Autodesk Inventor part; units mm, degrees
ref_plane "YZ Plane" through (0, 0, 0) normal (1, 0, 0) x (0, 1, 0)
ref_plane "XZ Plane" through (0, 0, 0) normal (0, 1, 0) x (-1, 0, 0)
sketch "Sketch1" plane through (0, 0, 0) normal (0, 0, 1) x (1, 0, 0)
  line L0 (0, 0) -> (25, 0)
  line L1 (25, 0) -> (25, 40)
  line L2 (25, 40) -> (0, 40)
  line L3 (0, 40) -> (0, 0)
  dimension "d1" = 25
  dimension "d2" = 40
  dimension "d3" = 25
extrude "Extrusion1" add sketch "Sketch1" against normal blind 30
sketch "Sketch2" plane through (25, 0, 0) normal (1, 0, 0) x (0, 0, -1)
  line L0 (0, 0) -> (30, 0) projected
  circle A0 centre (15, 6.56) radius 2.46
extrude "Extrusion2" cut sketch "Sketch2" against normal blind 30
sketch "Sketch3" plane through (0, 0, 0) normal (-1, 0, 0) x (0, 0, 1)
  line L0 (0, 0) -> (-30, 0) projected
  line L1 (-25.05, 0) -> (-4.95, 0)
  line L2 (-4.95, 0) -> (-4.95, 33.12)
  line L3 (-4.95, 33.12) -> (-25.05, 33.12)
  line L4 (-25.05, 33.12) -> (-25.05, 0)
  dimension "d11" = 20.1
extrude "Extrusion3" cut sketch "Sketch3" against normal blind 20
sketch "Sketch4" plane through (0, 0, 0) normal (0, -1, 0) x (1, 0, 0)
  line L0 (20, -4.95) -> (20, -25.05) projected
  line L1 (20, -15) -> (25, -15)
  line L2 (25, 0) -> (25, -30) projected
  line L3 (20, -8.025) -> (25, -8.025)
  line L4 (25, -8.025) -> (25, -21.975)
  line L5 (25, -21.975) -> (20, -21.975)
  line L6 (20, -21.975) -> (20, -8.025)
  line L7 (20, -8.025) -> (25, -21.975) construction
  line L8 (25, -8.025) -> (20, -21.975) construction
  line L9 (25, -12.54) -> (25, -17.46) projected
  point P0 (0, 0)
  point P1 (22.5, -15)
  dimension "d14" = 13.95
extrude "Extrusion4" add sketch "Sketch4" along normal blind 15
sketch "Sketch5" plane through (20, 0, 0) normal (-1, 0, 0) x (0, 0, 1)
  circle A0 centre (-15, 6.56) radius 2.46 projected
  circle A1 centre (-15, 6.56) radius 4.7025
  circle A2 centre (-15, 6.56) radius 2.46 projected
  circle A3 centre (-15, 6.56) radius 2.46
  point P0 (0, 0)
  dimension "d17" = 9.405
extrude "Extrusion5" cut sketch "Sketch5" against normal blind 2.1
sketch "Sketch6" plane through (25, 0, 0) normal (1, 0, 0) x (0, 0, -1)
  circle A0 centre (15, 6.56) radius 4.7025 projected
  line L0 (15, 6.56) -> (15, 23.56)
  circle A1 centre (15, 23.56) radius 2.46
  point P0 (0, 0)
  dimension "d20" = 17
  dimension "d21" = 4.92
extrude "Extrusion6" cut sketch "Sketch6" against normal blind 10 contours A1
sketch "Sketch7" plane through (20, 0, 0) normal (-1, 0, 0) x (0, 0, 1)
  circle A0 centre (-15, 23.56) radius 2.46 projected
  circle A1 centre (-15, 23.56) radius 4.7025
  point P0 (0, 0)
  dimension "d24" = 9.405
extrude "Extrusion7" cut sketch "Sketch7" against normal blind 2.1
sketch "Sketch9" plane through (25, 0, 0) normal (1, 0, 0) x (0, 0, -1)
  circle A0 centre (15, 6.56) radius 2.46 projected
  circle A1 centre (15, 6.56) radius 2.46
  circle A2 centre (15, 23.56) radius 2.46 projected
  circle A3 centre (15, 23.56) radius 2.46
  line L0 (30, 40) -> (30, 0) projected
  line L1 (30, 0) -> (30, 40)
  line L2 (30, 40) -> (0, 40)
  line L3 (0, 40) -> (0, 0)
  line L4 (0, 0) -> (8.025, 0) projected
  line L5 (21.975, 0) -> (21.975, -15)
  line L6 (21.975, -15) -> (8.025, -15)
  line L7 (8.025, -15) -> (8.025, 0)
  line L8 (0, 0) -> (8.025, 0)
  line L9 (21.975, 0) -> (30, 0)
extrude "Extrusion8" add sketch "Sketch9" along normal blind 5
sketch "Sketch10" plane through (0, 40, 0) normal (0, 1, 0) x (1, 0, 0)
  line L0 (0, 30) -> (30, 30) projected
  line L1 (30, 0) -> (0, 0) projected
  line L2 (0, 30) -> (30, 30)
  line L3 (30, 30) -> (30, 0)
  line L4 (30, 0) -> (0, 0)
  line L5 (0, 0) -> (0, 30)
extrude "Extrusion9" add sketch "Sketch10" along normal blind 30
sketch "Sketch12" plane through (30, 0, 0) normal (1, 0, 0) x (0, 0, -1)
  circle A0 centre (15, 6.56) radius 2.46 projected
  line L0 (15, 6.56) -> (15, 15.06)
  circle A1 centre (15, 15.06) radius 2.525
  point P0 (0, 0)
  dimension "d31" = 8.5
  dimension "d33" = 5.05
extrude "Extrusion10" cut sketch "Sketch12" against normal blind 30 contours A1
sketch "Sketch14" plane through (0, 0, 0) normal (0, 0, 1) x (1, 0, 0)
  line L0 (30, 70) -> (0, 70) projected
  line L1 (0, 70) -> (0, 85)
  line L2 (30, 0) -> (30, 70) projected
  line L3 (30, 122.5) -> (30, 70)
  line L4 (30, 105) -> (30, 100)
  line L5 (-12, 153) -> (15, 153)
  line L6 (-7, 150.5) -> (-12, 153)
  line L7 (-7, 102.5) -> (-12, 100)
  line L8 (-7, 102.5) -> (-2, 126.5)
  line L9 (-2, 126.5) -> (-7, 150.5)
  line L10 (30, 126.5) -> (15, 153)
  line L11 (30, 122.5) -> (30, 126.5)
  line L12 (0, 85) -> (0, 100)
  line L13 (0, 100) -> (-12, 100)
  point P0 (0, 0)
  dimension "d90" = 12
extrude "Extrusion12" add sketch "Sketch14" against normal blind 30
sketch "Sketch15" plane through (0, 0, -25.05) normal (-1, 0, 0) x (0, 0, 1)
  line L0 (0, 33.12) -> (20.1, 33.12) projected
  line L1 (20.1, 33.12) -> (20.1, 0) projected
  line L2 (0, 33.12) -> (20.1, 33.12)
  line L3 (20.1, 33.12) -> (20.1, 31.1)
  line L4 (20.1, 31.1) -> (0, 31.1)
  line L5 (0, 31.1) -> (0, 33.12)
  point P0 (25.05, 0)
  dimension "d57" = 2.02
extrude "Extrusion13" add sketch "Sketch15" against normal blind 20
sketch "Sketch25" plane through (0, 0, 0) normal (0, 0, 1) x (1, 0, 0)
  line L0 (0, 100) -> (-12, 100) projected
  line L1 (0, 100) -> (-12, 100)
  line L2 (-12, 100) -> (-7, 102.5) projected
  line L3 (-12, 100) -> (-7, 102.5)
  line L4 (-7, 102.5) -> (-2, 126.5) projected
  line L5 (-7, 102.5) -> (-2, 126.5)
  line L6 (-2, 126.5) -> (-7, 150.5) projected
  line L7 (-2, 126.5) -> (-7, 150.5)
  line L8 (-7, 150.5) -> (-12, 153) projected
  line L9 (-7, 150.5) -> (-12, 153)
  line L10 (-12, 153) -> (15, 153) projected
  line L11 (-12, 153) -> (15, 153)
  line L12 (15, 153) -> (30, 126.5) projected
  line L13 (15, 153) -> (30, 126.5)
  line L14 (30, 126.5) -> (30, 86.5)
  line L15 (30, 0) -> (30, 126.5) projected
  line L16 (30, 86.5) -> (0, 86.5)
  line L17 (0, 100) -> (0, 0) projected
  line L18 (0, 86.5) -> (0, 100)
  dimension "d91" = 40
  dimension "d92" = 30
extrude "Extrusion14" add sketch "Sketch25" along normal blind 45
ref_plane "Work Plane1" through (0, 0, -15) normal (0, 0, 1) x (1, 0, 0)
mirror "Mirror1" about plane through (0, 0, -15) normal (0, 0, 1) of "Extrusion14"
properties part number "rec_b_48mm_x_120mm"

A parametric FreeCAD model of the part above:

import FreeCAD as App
import Part
import Sketcher
Q = App.Units.Quantity

doc = App.newDocument("Part")
body = doc.addObject("PartDesign::Body", "Body")

# Sketch on XY plane
sketch1 = doc.addObject("Sketcher::SketchObject", "Sketch")
body.addObject(sketch1)
sketch1.AttachmentSupport = (doc.XY_Plane, [""])
sketch1.MapMode = "FlatFace"
sketch1.addGeometry(Part.LineSegment(App.Vector(0, 40, 0), App.Vector(0, 0, 0)), False)
sketch1.addGeometry(Part.LineSegment(App.Vector(0, 0, 0), App.Vector(25, 0, 0)), False)
sketch1.addGeometry(Part.LineSegment(App.Vector(25, 0, 0), App.Vector(25, 40, 0)), False)
sketch1.addGeometry(Part.LineSegment(App.Vector(25, 40, 0), App.Vector(0, 40, 0)), False)
sketch1.addConstraint(Sketcher.Constraint("Coincident", 0, 2, 1, 1))
sketch1.addConstraint(Sketcher.Constraint("Coincident", 1, 2, 2, 1))
sketch1.addConstraint(Sketcher.Constraint("Coincident", 2, 2, 3, 1))
sketch1.addConstraint(Sketcher.Constraint("Coincident", 3, 2, 0, 1))
sketch1.addConstraint(Sketcher.Constraint("Vertical", 0))
sketch1.addConstraint(Sketcher.Constraint("Horizontal", 1))
sketch1.addConstraint(Sketcher.Constraint("Vertical", 2))
sketch1.addConstraint(Sketcher.Constraint("Horizontal", 3))
sketch1.addConstraint(Sketcher.Constraint("Coincident", 0, 2, -1, 1))
sketch1.addConstraint(Sketcher.Constraint("DistanceX", 1, 1, 1, 2, Q("25 mm")))
sketch1.addConstraint(Sketcher.Constraint("DistanceY", 0, 2, 0, 1, Q("40 mm")))
pad1 = doc.addObject("PartDesign::Pad", "Pad")
body.addObject(pad1)
pad1.Profile = sketch1
pad1.Length = 30
pad1.Reversed = True

# Sketch on YZ plane
sketch2 = doc.addObject("Sketcher::SketchObject", "Sketch001")
body.addObject(sketch2)
sketch2.AttachmentSupport = (doc.YZ_Plane, [""])
sketch2.MapMode = "FlatFace"
sketch2.AttachmentOffset = App.Placement(App.Vector(0, 0, 25), App.Rotation())
sketch2.addGeometry(Part.Circle(App.Vector(6.56, -15, 0), App.Vector(0, 0, 1), 2.46), False)
sketch2.addConstraint(Sketcher.Constraint("Diameter", 0, Q("4.92 mm")))
sketch2.addConstraint(Sketcher.Constraint("DistanceY", 0, 3, -1, 1, Q("15 mm")))
sketch2.addConstraint(Sketcher.Constraint("DistanceX", -1, 1, 0, 3, Q("6.56 mm")))
pocket1 = doc.addObject("PartDesign::Pocket", "Pocket")
body.addObject(pocket1)
pocket1.Profile = sketch2
pocket1.Length = 30

# Sketch on YZ plane
sketch3 = doc.addObject("Sketcher::SketchObject", "Sketch002")
body.addObject(sketch3)
sketch3.AttachmentSupport = (doc.YZ_Plane, [""])
sketch3.MapMode = "FlatFace"
sketch3.addGeometry(Part.LineSegment(App.Vector(0, -25.05, 0), App.Vector(0, -4.95, 0)), False)
sketch3.addGeometry(Part.LineSegment(App.Vector(0, -4.95, 0), App.Vector(33.12, -4.95, 0)), False)
sketch3.addGeometry(Part.LineSegment(App.Vector(33.12, -4.95, 0), App.Vector(33.12, -25.05, 0)), False)
sketch3.addGeometry(Part.LineSegment(App.Vector(33.12, -25.05, 0), App.Vector(0, -25.05, 0)), False)
sketch3.addConstraint(Sketcher.Constraint("Coincident", 0, 2, 1, 1))
sketch3.addConstraint(Sketcher.Constraint("Coincident", 1, 2, 2, 1))
sketch3.addConstraint(Sketcher.Constraint("Coincident", 2, 2, 3, 1))
sketch3.addConstraint(Sketcher.Constraint("Coincident", 3, 2, 0, 1))
sketch3.addConstraint(Sketcher.Constraint("Vertical", 0))
sketch3.addConstraint(Sketcher.Constraint("Horizontal", 1))
sketch3.addConstraint(Sketcher.Constraint("Vertical", 2))
sketch3.addConstraint(Sketcher.Constraint("Horizontal", 3))
sketch3.addConstraint(Sketcher.Constraint("PointOnObject", 0, 2, -2))
sketch3.addConstraint(Sketcher.Constraint("DistanceY", 0, 1, 0, 2, Q("20.1 mm")))
sketch3.addConstraint(Sketcher.Constraint("DistanceX", 1, 1, 1, 2, Q("33.12 mm")))
sketch3.addConstraint(Sketcher.Constraint("DistanceY", 0, 2, -1, 1, Q("4.95 mm")))
pocket2 = doc.addObject("PartDesign::Pocket", "Pocket001")
body.addObject(pocket2)
pocket2.Profile = sketch3
pocket2.Length = 20
pocket2.Reversed = True

# Sketch on XZ plane
sketch4 = doc.addObject("Sketcher::SketchObject", "Sketch003")
body.addObject(sketch4)
sketch4.AttachmentSupport = (doc.XZ_Plane, [""])
sketch4.MapMode = "FlatFace"
sketch4.addGeometry(Part.LineSegment(App.Vector(25, -8.025, 0), App.Vector(20, -8.025, 0)), False)
sketch4.addGeometry(Part.LineSegment(App.Vector(20, -8.025, 0), App.Vector(20, -21.975, 0)), False)
sketch4.addGeometry(Part.LineSegment(App.Vector(20, -21.975, 0), App.Vector(25, -21.975, 0)), False)
sketch4.addGeometry(Part.LineSegment(App.Vector(25, -21.975, 0), App.Vector(25, -8.025, 0)), False)
sketch4.addConstraint(Sketcher.Constraint("Coincident", 0, 2, 1, 1))
sketch4.addConstraint(Sketcher.Constraint("Coincident", 1, 2, 2, 1))
sketch4.addConstraint(Sketcher.Constraint("Coincident", 2, 2, 3, 1))
sketch4.addConstraint(Sketcher.Constraint("Coincident", 3, 2, 0, 1))
sketch4.addConstraint(Sketcher.Constraint("Horizontal", 0))
sketch4.addConstraint(Sketcher.Constraint("Vertical", 1))
sketch4.addConstraint(Sketcher.Constraint("Horizontal", 2))
sketch4.addConstraint(Sketcher.Constraint("Vertical", 3))
sketch4.addConstraint(Sketcher.Constraint("DistanceY", 1, 2, 1, 1, Q("13.95 mm")))
sketch4.addConstraint(Sketcher.Constraint("DistanceX", 0, 2, 0, 1, Q("5 mm")))
sketch4.addConstraint(Sketcher.Constraint("DistanceX", -1, 1, 0, 2, Q("20 mm")))
sketch4.addConstraint(Sketcher.Constraint("DistanceY", 0, 2, -1, 1, Q("8.025 mm")))
pad2 = doc.addObject("PartDesign::Pad", "Pad001")
body.addObject(pad2)
pad2.Profile = sketch4
pad2.Length = 15

# Sketch on YZ plane
sketch5 = doc.addObject("Sketcher::SketchObject", "Sketch004")
body.addObject(sketch5)
sketch5.AttachmentSupport = (doc.YZ_Plane, [""])
sketch5.MapMode = "FlatFace"
sketch5.AttachmentOffset = App.Placement(App.Vector(0, 0, 20), App.Rotation())
sketch5.addGeometry(Part.Circle(App.Vector(6.56, -15, 0), App.Vector(0, 0, 1), 4.7025), False)
sketch5.addGeometry(Part.Circle(App.Vector(6.56, -15, 0), App.Vector(0, 0, 1), 2.46), False)
sketch5.addConstraint(Sketcher.Constraint("Coincident", 1, 3, 0, 3))
sketch5.addConstraint(Sketcher.Constraint("Diameter", 0, Q("9.405 mm")))
sketch5.addConstraint(Sketcher.Constraint("Diameter", 1, Q("4.92 mm")))
sketch5.addConstraint(Sketcher.Constraint("DistanceY", 0, 3, -1, 1, Q("15 mm")))
sketch5.addConstraint(Sketcher.Constraint("DistanceX", -1, 1, 0, 3, Q("6.56 mm")))
pocket3 = doc.addObject("PartDesign::Pocket", "Pocket002")
body.addObject(pocket3)
pocket3.Profile = sketch5
pocket3.Length = 2.1
pocket3.Reversed = True

# Sketch on YZ plane
sketch6 = doc.addObject("Sketcher::SketchObject", "Sketch005")
body.addObject(sketch6)
sketch6.AttachmentSupport = (doc.YZ_Plane, [""])
sketch6.MapMode = "FlatFace"
sketch6.AttachmentOffset = App.Placement(App.Vector(0, 0, 25), App.Rotation())
sketch6.addGeometry(Part.Circle(App.Vector(23.56, -15, 0), App.Vector(0, 0, 1), 2.46), False)
sketch6.addConstraint(Sketcher.Constraint("Diameter", 0, Q("4.92 mm")))
sketch6.addConstraint(Sketcher.Constraint("DistanceY", 0, 3, -1, 1, Q("15 mm")))
sketch6.addConstraint(Sketcher.Constraint("DistanceX", -1, 1, 0, 3, Q("23.56 mm")))
pocket4 = doc.addObject("PartDesign::Pocket", "Pocket003")
body.addObject(pocket4)
pocket4.Profile = sketch6
pocket4.Length = 10

# Sketch on YZ plane
sketch7 = doc.addObject("Sketcher::SketchObject", "Sketch006")
body.addObject(sketch7)
sketch7.AttachmentSupport = (doc.YZ_Plane, [""])
sketch7.MapMode = "FlatFace"
sketch7.AttachmentOffset = App.Placement(App.Vector(0, 0, 20), App.Rotation())
sketch7.addGeometry(Part.Circle(App.Vector(23.56, -15, 0), App.Vector(0, 0, 1), 4.7025), False)
sketch7.addGeometry(Part.Circle(App.Vector(23.56, -15, 0), App.Vector(0, 0, 1), 2.46), False)
sketch7.addConstraint(Sketcher.Constraint("Coincident", 1, 3, 0, 3))
sketch7.addConstraint(Sketcher.Constraint("Diameter", 0, Q("9.405 mm")))
sketch7.addConstraint(Sketcher.Constraint("Diameter", 1, Q("4.92 mm")))
sketch7.addConstraint(Sketcher.Constraint("DistanceY", 0, 3, -1, 1, Q("15 mm")))
sketch7.addConstraint(Sketcher.Constraint("DistanceX", -1, 1, 0, 3, Q("23.56 mm")))
pocket5 = doc.addObject("PartDesign::Pocket", "Pocket004")
body.addObject(pocket5)
pocket5.Profile = sketch7
pocket5.Length = 2.1
pocket5.Reversed = True

# Sketch on YZ plane
sketch8 = doc.addObject("Sketcher::SketchObject", "Sketch007")
body.addObject(sketch8)
sketch8.AttachmentSupport = (doc.YZ_Plane, [""])
sketch8.MapMode = "FlatFace"
sketch8.AttachmentOffset = App.Placement(App.Vector(0, 0, 25), App.Rotation())
sketch8.addGeometry(Part.LineSegment(App.Vector(0, -30, 0), App.Vector(40, -30, 0)), False)
sketch8.addGeometry(Part.LineSegment(App.Vector(40, -30, 0), App.Vector(40, 0, 0)), False)
sketch8.addGeometry(Part.LineSegment(App.Vector(40, 0, 0), App.Vector(0, 0, 0)), False)
sketch8.addGeometry(Part.LineSegment(App.Vector(0, 0, 0), App.Vector(0, -8.025, 0)), False)
sketch8.addGeometry(Part.LineSegment(App.Vector(0, -8.025, 0), App.Vector(-15, -8.025, 0)), False)
sketch8.addGeometry(Part.LineSegment(App.Vector(-15, -8.025, 0), App.Vector(-15, -21.975, 0)), False)
sketch8.addGeometry(Part.LineSegment(App.Vector(-15, -21.975, 0), App.Vector(0, -21.975, 0)), False)
sketch8.addGeometry(Part.LineSegment(App.Vector(0, -21.975, 0), App.Vector(0, -30, 0)), False)
sketch8.addGeometry(Part.Circle(App.Vector(6.56, -15, 0), App.Vector(0, 0, 1), 2.46), False)
sketch8.addGeometry(Part.Circle(App.Vector(23.56, -15, 0), App.Vector(0, 0, 1), 2.46), False)
sketch8.addConstraint(Sketcher.Constraint("Coincident", 0, 2, 1, 1))
sketch8.addConstraint(Sketcher.Constraint("Coincident", 1, 2, 2, 1))
sketch8.addConstraint(Sketcher.Constraint("Coincident", 2, 2, 3, 1))
sketch8.addConstraint(Sketcher.Constraint("Coincident", 3, 2, 4, 1))
sketch8.addConstraint(Sketcher.Constraint("Coincident", 4, 2, 5, 1))
sketch8.addConstraint(Sketcher.Constraint("Coincident", 5, 2, 6, 1))
sketch8.addConstraint(Sketcher.Constraint("Coincident", 6, 2, 7, 1))
sketch8.addConstraint(Sketcher.Constraint("Coincident", 7, 2, 0, 1))
sketch8.addConstraint(Sketcher.Constraint("Horizontal", 0))
sketch8.addConstraint(Sketcher.Constraint("Vertical", 1))
sketch8.addConstraint(Sketcher.Constraint("Horizontal", 2))
sketch8.addConstraint(Sketcher.Constraint("Vertical", 3))
sketch8.addConstraint(Sketcher.Constraint("Horizontal", 4))
sketch8.addConstraint(Sketcher.Constraint("Vertical", 5))
sketch8.addConstraint(Sketcher.Constraint("Horizontal", 6))
sketch8.addConstraint(Sketcher.Constraint("Vertical", 7))
sketch8.addConstraint(Sketcher.Constraint("Coincident", 2, 2, -1, 1))
sketch8.addConstraint(Sketcher.Constraint("Equal", 8, 9))
sketch8.addConstraint(Sketcher.Constraint("PointOnObject", 6, 2, -2))
sketch8.addConstraint(Sketcher.Constraint("Horizontal", 8, 3, 9, 3))
sketch8.addConstraint(Sketcher.Constraint("Equal", 3, 7))
sketch8.addConstraint(Sketcher.Constraint("Diameter", 8, Q("4.92 mm")))
sketch8.addConstraint(Sketcher.Constraint("DistanceX", 0, 1, 0, 2, Q("40 mm")))
sketch8.addConstraint(Sketcher.Constraint("DistanceX", 4, 2, 4, 1, Q("15 mm")))
sketch8.addConstraint(Sketcher.Constraint("DistanceY", 1, 1, 1, 2, Q("30 mm")))
sketch8.addConstraint(Sketcher.Constraint("DistanceY", 8, 3, -1, 1, Q("15 mm")))
sketch8.addConstraint(Sketcher.Constraint("DistanceX", 8, 3, 9, 3, Q("17 mm")))
sketch8.addConstraint(Sketcher.Constraint("DistanceY", 5, 2, 5, 1, Q("13.95 mm")))
sketch8.addConstraint(Sketcher.Constraint("DistanceX", -1, 1, 8, 3, Q("6.56 mm")))
pad3 = doc.addObject("PartDesign::Pad", "Pad002")
body.addObject(pad3)
pad3.Profile = sketch8
pad3.Length = 5

# Sketch on XZ plane
sketch9 = doc.addObject("Sketcher::SketchObject", "Sketch008")
body.addObject(sketch9)
sketch9.AttachmentSupport = (doc.XZ_Plane, [""])
sketch9.MapMode = "FlatFace"
sketch9.AttachmentOffset = App.Placement(App.Vector(0, 0, -40), App.Rotation())
sketch9.addGeometry(Part.LineSegment(App.Vector(30, -30, 0), App.Vector(0, -30, 0)), False)
sketch9.addGeometry(Part.LineSegment(App.Vector(0, -30, 0), App.Vector(0, 0, 0)), False)
sketch9.addGeometry(Part.LineSegment(App.Vector(0, 0, 0), App.Vector(30, 0, 0)), False)
sketch9.addGeometry(Part.LineSegment(App.Vector(30, 0, 0), App.Vector(30, -30, 0)), False)
sketch9.addConstraint(Sketcher.Constraint("Coincident", 0, 2, 1, 1))
sketch9.addConstraint(Sketcher.Constraint("Coincident", 1, 2, 2, 1))
sketch9.addConstraint(Sketcher.Constraint("Coincident", 2, 2, 3, 1))
sketch9.addConstraint(Sketcher.Constraint("Coincident", 3, 2, 0, 1))
sketch9.addConstraint(Sketcher.Constraint("Horizontal", 0))
sketch9.addConstraint(Sketcher.Constraint("Vertical", 1))
sketch9.addConstraint(Sketcher.Constraint("Horizontal", 2))
sketch9.addConstraint(Sketcher.Constraint("Vertical", 3))
sketch9.addConstraint(Sketcher.Constraint("Coincident", 1, 2, -1, 1))
sketch9.addConstraint(Sketcher.Constraint("Equal", 2, 1))
sketch9.addConstraint(Sketcher.Constraint("DistanceX", 0, 2, 0, 1, Q("30 mm")))
pad4 = doc.addObject("PartDesign::Pad", "Pad003")
body.addObject(pad4)
pad4.Profile = sketch9
pad4.Length = 30
pad4.Reversed = True

# Sketch on YZ plane
sketch10 = doc.addObject("Sketcher::SketchObject", "Sketch009")
body.addObject(sketch10)
sketch10.AttachmentSupport = (doc.YZ_Plane, [""])
sketch10.MapMode = "FlatFace"
sketch10.AttachmentOffset = App.Placement(App.Vector(0, 0, 30), App.Rotation())
sketch10.addGeometry(Part.Circle(App.Vector(15.06, -15, 0), App.Vector(0, 0, 1), 2.525), False)
sketch10.addConstraint(Sketcher.Constraint("Diameter", 0, Q("5.05 mm")))
sketch10.addConstraint(Sketcher.Constraint("DistanceY", 0, 3, -1, 1, Q("15 mm")))
sketch10.addConstraint(Sketcher.Constraint("DistanceX", -1, 1, 0, 3, Q("15.06 mm")))
pocket6 = doc.addObject("PartDesign::Pocket", "Pocket005")
body.addObject(pocket6)
pocket6.Profile = sketch10
pocket6.Length = 30

# Sketch on XY plane
sketch11 = doc.addObject("Sketcher::SketchObject", "Sketch010")
body.addObject(sketch11)
sketch11.AttachmentSupport = (doc.XY_Plane, [""])
sketch11.MapMode = "FlatFace"
sketch11.addGeometry(Part.LineSegment(App.Vector(0, 70, 0), App.Vector(30, 70, 0)), False)
sketch11.addGeometry(Part.LineSegment(App.Vector(30, 70, 0), App.Vector(30, 126.5, 0)), False)
sketch11.addGeometry(Part.LineSegment(App.Vector(30, 126.5, 0), App.Vector(15, 153, 0)), False)
sketch11.addGeometry(Part.LineSegment(App.Vector(15, 153, 0), App.Vector(-12, 153, 0)), False)
sketch11.addGeometry(Part.LineSegment(App.Vector(-12, 153, 0), App.Vector(-7, 150.5, 0)), False)
sketch11.addGeometry(Part.LineSegment(App.Vector(-7, 150.5, 0), App.Vector(-2, 126.5, 0)), False)
sketch11.addGeometry(Part.LineSegment(App.Vector(-2, 126.5, 0), App.Vector(-7, 102.5, 0)), False)
sketch11.addGeometry(Part.LineSegment(App.Vector(-7, 102.5, 0), App.Vector(-12, 100, 0)), False)
sketch11.addGeometry(Part.LineSegment(App.Vector(-12, 100, 0), App.Vector(0, 100, 0)), False)
sketch11.addGeometry(Part.LineSegment(App.Vector(0, 100, 0), App.Vector(0, 70, 0)), False)
sketch11.addConstraint(Sketcher.Constraint("Coincident", 0, 2, 1, 1))
sketch11.addConstraint(Sketcher.Constraint("Coincident", 1, 2, 2, 1))
sketch11.addConstraint(Sketcher.Constraint("Coincident", 2, 2, 3, 1))
sketch11.addConstraint(Sketcher.Constraint("Coincident", 3, 2, 4, 1))
sketch11.addConstraint(Sketcher.Constraint("Coincident", 4, 2, 5, 1))
sketch11.addConstraint(Sketcher.Constraint("Coincident", 5, 2, 6, 1))
sketch11.addConstraint(Sketcher.Constraint("Coincident", 6, 2, 7, 1))
sketch11.addConstraint(Sketcher.Constraint("Coincident", 7, 2, 8, 1))
sketch11.addConstraint(Sketcher.Constraint("Coincident", 8, 2, 9, 1))
sketch11.addConstraint(Sketcher.Constraint("Coincident", 9, 2, 0, 1))
sketch11.addConstraint(Sketcher.Constraint("Horizontal", 0))
sketch11.addConstraint(Sketcher.Constraint("Vertical", 1))
sketch11.addConstraint(Sketcher.Constraint("Horizontal", 3))
sketch11.addConstraint(Sketcher.Constraint("Horizontal", 8))
sketch11.addConstraint(Sketcher.Constraint("Vertical", 9))
sketch11.addConstraint(Sketcher.Constraint("PointOnObject", 8, 2, -2))
sketch11.addConstraint(Sketcher.Constraint("Horizontal", 1, 2, 5, 2))
sketch11.addConstraint(Sketcher.Constraint("Vertical", 4, 2, 6, 2))
sketch11.addConstraint(Sketcher.Constraint("Vertical", 3, 2, 7, 2))
sketch11.addConstraint(Sketcher.Constraint("Equal", 0, 9))
sketch11.addConstraint(Sketcher.Constraint("Equal", 5, 6))
sketch11.addConstraint(Sketcher.Constraint("Equal", 4, 7))
sketch11.addConstraint(Sketcher.Constraint("DistanceX", 8, 1, 8, 2, Q("12 mm")))
sketch11.addConstraint(Sketcher.Constraint("DistanceX", 0, 1, 0, 2, Q("30 mm")))
sketch11.addConstraint(Sketcher.Constraint("DistanceX", 3, 2, 3, 1, Q("27 mm")))
sketch11.addConstraint(Sketcher.Constraint("DistanceY", 1, 1, 1, 2, Q("56.5 mm")))
sketch11.addConstraint(Sketcher.Constraint("DistanceY", -1, 1, 0, 2, Q("70 mm")))
sketch11.addConstraint(Sketcher.Constraint("DistanceX", 4, 2, -1, 1, Q("7 mm")))
sketch11.addConstraint(Sketcher.Constraint("DistanceX", 5, 2, -1, 1, Q("2 mm")))
sketch11.addConstraint(Sketcher.Constraint("DistanceY", 1, 2, 4, 2, Q("24 mm")))
pad5 = doc.addObject("PartDesign::Pad", "Pad004")
body.addObject(pad5)
pad5.Profile = sketch11
pad5.Length = 30
pad5.Reversed = True

# Sketch on YZ plane
sketch12 = doc.addObject("Sketcher::SketchObject", "Sketch011")
body.addObject(sketch12)
sketch12.AttachmentSupport = (doc.YZ_Plane, [""])
sketch12.MapMode = "FlatFace"
sketch12.addGeometry(Part.LineSegment(App.Vector(33.12, -4.95, 0), App.Vector(33.12, -25.05, 0)), False)
sketch12.addGeometry(Part.LineSegment(App.Vector(33.12, -25.05, 0), App.Vector(31.1, -25.05, 0)), False)
sketch12.addGeometry(Part.LineSegment(App.Vector(31.1, -25.05, 0), App.Vector(31.1, -4.95, 0)), False)
sketch12.addGeometry(Part.LineSegment(App.Vector(31.1, -4.95, 0), App.Vector(33.12, -4.95, 0)), False)
sketch12.addConstraint(Sketcher.Constraint("Coincident", 0, 2, 1, 1))
sketch12.addConstraint(Sketcher.Constraint("Coincident", 1, 2, 2, 1))
sketch12.addConstraint(Sketcher.Constraint("Coincident", 2, 2, 3, 1))
sketch12.addConstraint(Sketcher.Constraint("Coincident", 3, 2, 0, 1))
sketch12.addConstraint(Sketcher.Constraint("Vertical", 0))
sketch12.addConstraint(Sketcher.Constraint("Horizontal", 1))
sketch12.addConstraint(Sketcher.Constraint("Vertical", 2))
sketch12.addConstraint(Sketcher.Constraint("Horizontal", 3))
sketch12.addConstraint(Sketcher.Constraint("DistanceX", 1, 2, 1, 1, Q("2.02 mm")))
sketch12.addConstraint(Sketcher.Constraint("DistanceY", 0, 2, 0, 1, Q("20.1 mm")))
sketch12.addConstraint(Sketcher.Constraint("DistanceX", -1, 1, 1, 2, Q("31.1 mm")))
sketch12.addConstraint(Sketcher.Constraint("DistanceY", 0, 2, -1, 1, Q("25.05 mm")))
pad6 = doc.addObject("PartDesign::Pad", "Pad005")
body.addObject(pad6)
pad6.Profile = sketch12
pad6.Length = 20

# Sketch on XY plane
sketch13 = doc.addObject("Sketcher::SketchObject", "Sketch012")
body.addObject(sketch13)
sketch13.AttachmentSupport = (doc.XY_Plane, [""])
sketch13.MapMode = "FlatFace"
sketch13.addGeometry(Part.LineSegment(App.Vector(-12, 100, 0), App.Vector(0, 100, 0)), False)
sketch13.addGeometry(Part.LineSegment(App.Vector(0, 100, 0), App.Vector(0, 86.5, 0)), False)
sketch13.addGeometry(Part.LineSegment(App.Vector(0, 86.5, 0), App.Vector(30, 86.5, 0)), False)
sketch13.addGeometry(Part.LineSegment(App.Vector(30, 86.5, 0), App.Vector(30, 126.5, 0)), False)
sketch13.addGeometry(Part.LineSegment(App.Vector(30, 126.5, 0), App.Vector(15, 153, 0)), False)
sketch13.addGeometry(Part.LineSegment(App.Vector(15, 153, 0), App.Vector(-12, 153, 0)), False)
sketch13.addGeometry(Part.LineSegment(App.Vector(-12, 153, 0), App.Vector(-7, 150.5, 0)), False)
sketch13.addGeometry(Part.LineSegment(App.Vector(-7, 150.5, 0), App.Vector(-2, 126.5, 0)), False)
sketch13.addGeometry(Part.LineSegment(App.Vector(-2, 126.5, 0), App.Vector(-7, 102.5, 0)), False)
sketch13.addGeometry(Part.LineSegment(App.Vector(-7, 102.5, 0), App.Vector(-12, 100, 0)), False)
sketch13.addConstraint(Sketcher.Constraint("Coincident", 0, 2, 1, 1))
sketch13.addConstraint(Sketcher.Constraint("Coincident", 1, 2, 2, 1))
sketch13.addConstraint(Sketcher.Constraint("Coincident", 2, 2, 3, 1))
sketch13.addConstraint(Sketcher.Constraint("Coincident", 3, 2, 4, 1))
sketch13.addConstraint(Sketcher.Constraint("Coincident", 4, 2, 5, 1))
sketch13.addConstraint(Sketcher.Constraint("Coincident", 5, 2, 6, 1))
sketch13.addConstraint(Sketcher.Constraint("Coincident", 6, 2, 7, 1))
sketch13.addConstraint(Sketcher.Constraint("Coincident", 7, 2, 8, 1))
sketch13.addConstraint(Sketcher.Constraint("Coincident", 8, 2, 9, 1))
sketch13.addConstraint(Sketcher.Constraint("Coincident", 9, 2, 0, 1))
sketch13.addConstraint(Sketcher.Constraint("Horizontal", 0))
sketch13.addConstraint(Sketcher.Constraint("Vertical", 1))
sketch13.addConstraint(Sketcher.Constraint("Horizontal", 2))
sketch13.addConstraint(Sketcher.Constraint("Vertical", 3))
sketch13.addConstraint(Sketcher.Constraint("Horizontal", 5))
sketch13.addConstraint(Sketcher.Constraint("PointOnObject", 0, 2, -2))
sketch13.addConstraint(Sketcher.Constraint("Horizontal", 3, 2, 7, 2))
sketch13.addConstraint(Sketcher.Constraint("Vertical", 6, 2, 8, 2))
sketch13.addConstraint(Sketcher.Constraint("Vertical", 5, 2, 9, 2))
sketch13.addConstraint(Sketcher.Constraint("Equal", 7, 8))
sketch13.addConstraint(Sketcher.Constraint("Equal", 6, 9))
sketch13.addConstraint(Sketcher.Constraint("DistanceX", 2, 1, 2, 2, Q("30 mm")))
sketch13.addConstraint(Sketcher.Constraint("DistanceY", 3, 1, 3, 2, Q("40 mm")))
sketch13.addConstraint(Sketcher.Constraint("DistanceX", 0, 1, 0, 2, Q("12 mm")))
sketch13.addConstraint(Sketcher.Constraint("DistanceX", 5, 2, 5, 1, Q("27 mm")))
sketch13.addConstraint(Sketcher.Constraint("DistanceY", 1, 2, 1, 1, Q("13.5 mm")))
sketch13.addConstraint(Sketcher.Constraint("DistanceY", -1, 1, 0, 2, Q("100 mm")))
sketch13.addConstraint(Sketcher.Constraint("DistanceX", 6, 2, -1, 1, Q("7 mm")))
sketch13.addConstraint(Sketcher.Constraint("DistanceX", 7, 2, -1, 1, Q("2 mm")))
sketch13.addConstraint(Sketcher.Constraint("DistanceY", 3, 2, 6, 2, Q("24 mm")))
pad7 = doc.addObject("PartDesign::Pad", "Pad006")
body.addObject(pad7)
pad7.Profile = sketch13
pad7.Length = 45
doc.recompute()

datumplane = doc.addObject("PartDesign::Plane", "DatumPlane")
body.addObject(datumplane)
datumplane.AttachmentSupport = (doc.XY_Plane, [""])
datumplane.MapMode = "FlatFace"
datumplane.AttachmentOffset = App.Placement(App.Vector(0, 0, -15), App.Rotation())
mirrored = doc.addObject("PartDesign::Mirrored", "Mirrored")
body.addObject(mirrored)
mirrored.Originals = [pad7]
mirrored.MirrorPlane = (datumplane, [""])
body.Tip = mirrored

doc.recompute()
